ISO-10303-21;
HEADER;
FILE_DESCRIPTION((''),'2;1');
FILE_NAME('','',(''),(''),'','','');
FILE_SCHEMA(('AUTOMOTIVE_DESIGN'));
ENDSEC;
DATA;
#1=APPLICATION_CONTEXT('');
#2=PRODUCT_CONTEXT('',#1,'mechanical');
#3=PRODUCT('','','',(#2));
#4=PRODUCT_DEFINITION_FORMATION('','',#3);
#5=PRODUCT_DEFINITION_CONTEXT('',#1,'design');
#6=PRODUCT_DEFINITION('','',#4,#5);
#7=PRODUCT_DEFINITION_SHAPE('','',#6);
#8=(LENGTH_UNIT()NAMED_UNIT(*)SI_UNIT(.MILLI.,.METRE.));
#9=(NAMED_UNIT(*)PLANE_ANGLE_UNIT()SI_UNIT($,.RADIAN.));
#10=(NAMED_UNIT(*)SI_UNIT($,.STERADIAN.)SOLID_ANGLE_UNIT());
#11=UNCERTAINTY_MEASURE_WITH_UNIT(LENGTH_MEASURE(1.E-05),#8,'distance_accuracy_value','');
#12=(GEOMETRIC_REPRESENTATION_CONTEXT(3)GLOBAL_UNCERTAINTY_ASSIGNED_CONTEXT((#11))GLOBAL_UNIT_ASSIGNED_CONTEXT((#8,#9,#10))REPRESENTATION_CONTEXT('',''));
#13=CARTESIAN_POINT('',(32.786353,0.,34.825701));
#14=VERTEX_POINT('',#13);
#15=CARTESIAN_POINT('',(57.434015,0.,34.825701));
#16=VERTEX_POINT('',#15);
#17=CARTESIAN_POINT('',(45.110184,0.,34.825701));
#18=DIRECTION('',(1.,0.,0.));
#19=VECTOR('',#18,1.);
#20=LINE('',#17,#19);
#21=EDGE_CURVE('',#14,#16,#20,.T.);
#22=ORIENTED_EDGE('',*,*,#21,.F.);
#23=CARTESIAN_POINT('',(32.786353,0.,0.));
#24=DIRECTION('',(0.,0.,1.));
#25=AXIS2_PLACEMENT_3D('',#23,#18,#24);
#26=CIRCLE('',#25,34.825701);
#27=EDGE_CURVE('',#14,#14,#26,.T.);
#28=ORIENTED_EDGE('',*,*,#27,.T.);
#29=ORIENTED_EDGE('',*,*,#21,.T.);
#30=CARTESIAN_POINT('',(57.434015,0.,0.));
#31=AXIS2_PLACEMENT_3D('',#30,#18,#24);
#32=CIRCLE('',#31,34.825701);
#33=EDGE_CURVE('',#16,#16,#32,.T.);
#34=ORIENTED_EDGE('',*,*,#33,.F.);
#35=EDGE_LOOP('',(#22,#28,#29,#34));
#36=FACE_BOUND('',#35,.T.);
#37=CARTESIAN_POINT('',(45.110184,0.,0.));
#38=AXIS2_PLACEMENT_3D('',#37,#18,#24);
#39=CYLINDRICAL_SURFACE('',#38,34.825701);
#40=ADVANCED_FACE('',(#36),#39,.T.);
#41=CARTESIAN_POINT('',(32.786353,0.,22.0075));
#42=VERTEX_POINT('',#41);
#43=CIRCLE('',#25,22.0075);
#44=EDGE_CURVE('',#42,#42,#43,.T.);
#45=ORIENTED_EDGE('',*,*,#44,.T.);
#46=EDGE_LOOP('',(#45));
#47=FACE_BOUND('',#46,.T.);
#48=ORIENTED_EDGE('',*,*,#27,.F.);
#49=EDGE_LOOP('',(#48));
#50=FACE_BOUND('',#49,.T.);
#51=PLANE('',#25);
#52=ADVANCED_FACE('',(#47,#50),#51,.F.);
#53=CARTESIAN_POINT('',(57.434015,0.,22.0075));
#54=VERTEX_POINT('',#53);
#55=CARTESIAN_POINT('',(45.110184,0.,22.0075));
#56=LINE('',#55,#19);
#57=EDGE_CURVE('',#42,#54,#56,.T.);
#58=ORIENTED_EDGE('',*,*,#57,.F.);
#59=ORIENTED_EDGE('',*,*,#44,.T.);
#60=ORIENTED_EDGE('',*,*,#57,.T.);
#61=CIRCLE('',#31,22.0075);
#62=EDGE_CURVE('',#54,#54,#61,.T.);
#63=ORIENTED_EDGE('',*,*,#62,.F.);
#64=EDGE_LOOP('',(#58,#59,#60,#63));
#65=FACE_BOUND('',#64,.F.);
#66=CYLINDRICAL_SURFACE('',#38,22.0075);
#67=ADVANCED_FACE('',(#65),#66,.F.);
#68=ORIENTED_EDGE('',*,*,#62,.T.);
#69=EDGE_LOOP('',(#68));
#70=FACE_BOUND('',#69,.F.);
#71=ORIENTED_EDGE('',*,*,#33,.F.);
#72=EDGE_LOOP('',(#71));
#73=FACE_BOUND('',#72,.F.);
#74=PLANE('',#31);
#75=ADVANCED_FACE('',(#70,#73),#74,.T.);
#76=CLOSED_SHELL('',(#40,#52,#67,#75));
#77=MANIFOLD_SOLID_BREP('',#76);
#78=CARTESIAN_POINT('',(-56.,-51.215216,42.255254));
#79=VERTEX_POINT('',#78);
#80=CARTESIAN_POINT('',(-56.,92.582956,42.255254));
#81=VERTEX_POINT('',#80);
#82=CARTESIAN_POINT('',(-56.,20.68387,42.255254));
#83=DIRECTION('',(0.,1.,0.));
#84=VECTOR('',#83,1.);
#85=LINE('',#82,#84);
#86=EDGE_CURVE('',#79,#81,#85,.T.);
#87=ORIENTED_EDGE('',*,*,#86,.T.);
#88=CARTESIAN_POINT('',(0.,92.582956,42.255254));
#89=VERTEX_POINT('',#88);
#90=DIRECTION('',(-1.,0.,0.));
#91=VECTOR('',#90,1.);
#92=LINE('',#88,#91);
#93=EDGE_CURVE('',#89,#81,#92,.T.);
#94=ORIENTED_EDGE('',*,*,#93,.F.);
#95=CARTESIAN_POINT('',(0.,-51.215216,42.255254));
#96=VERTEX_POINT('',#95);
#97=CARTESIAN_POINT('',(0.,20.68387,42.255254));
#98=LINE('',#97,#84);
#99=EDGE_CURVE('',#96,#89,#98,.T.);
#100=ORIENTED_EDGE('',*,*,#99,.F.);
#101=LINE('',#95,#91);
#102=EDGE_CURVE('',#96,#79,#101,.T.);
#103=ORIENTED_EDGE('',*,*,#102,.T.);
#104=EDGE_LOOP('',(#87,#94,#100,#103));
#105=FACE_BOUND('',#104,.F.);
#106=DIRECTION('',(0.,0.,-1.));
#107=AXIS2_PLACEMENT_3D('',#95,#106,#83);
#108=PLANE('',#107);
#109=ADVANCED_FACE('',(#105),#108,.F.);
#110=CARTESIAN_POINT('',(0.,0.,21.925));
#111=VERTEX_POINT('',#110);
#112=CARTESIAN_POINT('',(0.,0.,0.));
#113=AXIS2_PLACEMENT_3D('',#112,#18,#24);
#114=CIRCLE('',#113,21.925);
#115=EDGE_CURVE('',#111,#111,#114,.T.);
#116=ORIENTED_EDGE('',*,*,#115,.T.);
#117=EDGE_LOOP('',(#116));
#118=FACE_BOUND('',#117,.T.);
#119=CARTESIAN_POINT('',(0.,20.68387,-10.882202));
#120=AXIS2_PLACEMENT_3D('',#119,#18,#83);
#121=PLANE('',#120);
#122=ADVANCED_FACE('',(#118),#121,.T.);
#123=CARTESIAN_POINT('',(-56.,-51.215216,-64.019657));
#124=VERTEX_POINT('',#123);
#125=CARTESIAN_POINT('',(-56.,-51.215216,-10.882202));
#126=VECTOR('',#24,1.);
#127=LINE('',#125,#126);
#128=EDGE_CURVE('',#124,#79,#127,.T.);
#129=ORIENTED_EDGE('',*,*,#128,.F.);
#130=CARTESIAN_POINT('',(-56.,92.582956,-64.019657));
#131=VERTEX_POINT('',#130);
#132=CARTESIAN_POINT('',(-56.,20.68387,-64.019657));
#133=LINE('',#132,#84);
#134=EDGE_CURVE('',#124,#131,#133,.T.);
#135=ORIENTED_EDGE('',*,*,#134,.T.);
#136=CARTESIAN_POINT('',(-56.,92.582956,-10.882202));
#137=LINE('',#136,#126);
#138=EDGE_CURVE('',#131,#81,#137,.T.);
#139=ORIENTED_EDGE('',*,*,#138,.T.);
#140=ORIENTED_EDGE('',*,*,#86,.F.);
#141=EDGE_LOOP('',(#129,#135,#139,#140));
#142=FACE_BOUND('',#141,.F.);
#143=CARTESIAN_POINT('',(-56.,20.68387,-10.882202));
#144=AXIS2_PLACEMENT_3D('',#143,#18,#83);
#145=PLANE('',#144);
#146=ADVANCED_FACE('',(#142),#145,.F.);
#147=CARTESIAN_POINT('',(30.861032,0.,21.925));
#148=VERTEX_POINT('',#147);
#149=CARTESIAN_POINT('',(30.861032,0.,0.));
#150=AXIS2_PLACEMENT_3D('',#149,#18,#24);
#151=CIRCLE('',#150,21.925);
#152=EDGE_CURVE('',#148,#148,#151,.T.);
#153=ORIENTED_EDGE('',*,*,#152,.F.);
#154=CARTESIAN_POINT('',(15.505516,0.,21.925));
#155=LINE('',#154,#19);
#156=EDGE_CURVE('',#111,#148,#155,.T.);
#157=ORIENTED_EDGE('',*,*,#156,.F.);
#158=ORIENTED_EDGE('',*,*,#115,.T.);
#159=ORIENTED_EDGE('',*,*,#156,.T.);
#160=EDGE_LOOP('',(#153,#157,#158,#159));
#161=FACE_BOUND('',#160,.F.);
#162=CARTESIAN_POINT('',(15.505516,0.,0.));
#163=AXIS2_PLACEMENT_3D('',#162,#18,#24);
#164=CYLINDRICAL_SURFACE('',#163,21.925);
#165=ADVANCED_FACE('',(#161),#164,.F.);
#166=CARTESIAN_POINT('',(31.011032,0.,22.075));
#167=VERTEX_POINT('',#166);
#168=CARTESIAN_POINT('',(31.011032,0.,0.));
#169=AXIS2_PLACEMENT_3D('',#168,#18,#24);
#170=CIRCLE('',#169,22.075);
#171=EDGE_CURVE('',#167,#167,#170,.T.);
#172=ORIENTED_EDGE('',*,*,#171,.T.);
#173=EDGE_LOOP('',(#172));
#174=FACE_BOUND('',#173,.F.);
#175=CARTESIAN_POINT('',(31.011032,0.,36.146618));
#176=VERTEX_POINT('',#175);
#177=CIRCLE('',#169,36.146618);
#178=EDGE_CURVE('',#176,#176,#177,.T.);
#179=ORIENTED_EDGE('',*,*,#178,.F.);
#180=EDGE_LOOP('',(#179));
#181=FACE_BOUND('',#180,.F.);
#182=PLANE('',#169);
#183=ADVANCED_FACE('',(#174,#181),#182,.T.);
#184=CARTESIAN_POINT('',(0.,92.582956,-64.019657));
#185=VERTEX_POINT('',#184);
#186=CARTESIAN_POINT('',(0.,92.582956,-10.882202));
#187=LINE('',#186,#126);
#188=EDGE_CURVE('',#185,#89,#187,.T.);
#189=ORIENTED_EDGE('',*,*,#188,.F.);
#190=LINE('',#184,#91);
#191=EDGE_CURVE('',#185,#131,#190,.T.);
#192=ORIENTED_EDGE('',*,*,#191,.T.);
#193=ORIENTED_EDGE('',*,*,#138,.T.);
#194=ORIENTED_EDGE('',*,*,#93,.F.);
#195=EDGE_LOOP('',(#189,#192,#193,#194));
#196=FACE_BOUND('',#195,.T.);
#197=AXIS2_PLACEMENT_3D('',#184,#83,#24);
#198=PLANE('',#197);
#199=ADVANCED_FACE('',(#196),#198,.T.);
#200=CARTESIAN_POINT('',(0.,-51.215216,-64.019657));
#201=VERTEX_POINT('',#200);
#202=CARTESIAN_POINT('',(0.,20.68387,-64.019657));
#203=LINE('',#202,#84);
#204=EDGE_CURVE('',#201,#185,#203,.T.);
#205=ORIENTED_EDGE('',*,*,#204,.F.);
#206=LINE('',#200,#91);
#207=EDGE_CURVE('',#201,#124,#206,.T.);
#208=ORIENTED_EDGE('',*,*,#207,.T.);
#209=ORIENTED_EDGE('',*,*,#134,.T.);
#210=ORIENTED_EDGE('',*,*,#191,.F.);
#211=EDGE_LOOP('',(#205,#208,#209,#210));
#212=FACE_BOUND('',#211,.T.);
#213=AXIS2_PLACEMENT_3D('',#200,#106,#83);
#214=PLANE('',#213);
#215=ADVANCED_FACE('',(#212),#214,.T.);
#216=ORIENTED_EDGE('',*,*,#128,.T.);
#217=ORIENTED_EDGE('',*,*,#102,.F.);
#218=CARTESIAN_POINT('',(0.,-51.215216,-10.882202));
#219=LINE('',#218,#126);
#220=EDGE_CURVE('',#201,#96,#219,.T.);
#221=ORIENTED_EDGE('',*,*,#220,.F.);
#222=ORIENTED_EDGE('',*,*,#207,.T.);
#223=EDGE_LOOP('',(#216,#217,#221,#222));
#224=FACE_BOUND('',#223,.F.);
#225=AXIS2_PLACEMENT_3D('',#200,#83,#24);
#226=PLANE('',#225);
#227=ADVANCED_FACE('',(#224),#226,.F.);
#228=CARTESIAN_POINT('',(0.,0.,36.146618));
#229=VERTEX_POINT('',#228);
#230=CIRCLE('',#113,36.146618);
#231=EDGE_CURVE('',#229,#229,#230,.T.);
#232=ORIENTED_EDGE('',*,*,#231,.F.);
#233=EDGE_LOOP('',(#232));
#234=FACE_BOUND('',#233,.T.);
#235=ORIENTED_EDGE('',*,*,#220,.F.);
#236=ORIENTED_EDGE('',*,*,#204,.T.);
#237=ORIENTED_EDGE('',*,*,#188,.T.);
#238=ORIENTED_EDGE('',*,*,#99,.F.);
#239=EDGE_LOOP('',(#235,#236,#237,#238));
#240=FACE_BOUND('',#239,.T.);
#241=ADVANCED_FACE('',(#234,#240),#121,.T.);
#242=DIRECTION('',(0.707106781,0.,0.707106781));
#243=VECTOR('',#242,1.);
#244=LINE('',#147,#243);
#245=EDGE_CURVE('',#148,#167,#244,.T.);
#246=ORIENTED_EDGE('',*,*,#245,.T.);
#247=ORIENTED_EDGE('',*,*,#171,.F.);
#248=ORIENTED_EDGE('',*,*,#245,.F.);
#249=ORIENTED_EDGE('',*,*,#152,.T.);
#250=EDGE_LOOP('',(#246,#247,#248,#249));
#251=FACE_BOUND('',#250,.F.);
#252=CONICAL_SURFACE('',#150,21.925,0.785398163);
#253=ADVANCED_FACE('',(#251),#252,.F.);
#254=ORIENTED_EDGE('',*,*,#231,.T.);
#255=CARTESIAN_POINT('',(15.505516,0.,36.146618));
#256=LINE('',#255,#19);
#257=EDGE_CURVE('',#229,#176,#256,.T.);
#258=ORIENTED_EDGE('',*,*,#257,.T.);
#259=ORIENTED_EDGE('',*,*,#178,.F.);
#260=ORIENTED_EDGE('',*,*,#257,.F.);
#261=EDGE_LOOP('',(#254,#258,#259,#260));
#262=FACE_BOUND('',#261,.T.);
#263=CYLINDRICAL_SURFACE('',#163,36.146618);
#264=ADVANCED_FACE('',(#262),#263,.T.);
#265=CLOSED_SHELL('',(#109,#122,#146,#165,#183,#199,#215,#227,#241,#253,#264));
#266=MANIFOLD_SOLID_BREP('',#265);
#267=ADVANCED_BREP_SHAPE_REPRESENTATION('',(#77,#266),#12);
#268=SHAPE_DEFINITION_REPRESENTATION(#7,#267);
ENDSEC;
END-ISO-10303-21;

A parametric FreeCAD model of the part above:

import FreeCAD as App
import Part
import Sketcher
Q = App.Units.Quantity


def edges_at(feature, points):
    """Names of the edges that pass closest to the given points."""
    edges = feature.Shape.Edges
    near = lambda p: min(range(len(edges)), key=lambda i: edges[i].distToShape(Part.Vertex(*p))[0])
    return sorted({f"Edge{near(p) + 1}" for p in points})


def add_polygon(sketch, points):
    """Adds a closed chain of lines whose ends are joined by coincident constraints."""
    first, n = sketch.GeometryCount, len(points)
    for a, b in zip(points, points[1:] + points[:1]):
        sketch.addGeometry(Part.LineSegment(App.Vector(*a, 0), App.Vector(*b, 0)), False)
    for i in range(n):
        sketch.addConstraint(Sketcher.Constraint("Coincident", first + i, 2, first + (i + 1) % n, 1))

doc = App.newDocument("Part")
params = doc.addObject("Spreadsheet::Sheet", "Params")
for row, (alias, value) in enumerate([
    ("revolution_angle", "360 deg"),
    ("chamfer_size", "0.15 mm"),
    ("pad1_length", "56 mm"),
    ("revolution2_angle", "360 deg"),
], start=1):
    params.set(f"A{row}", alias)
    params.set(f"B{row}", "=" + value)
    params.setAlias(f"B{row}", alias)

body = doc.addObject("PartDesign::Body", "Body")

# Sketch on XZ plane
sketch1 = body.newObject("Sketcher::SketchObject", "Sketch")
sketch1.AttachmentSupport = (doc.getObject("XZ_Plane"), [""])
sketch1.MapMode = "FlatFace"
add_polygon(sketch1, [(0, 36.146618), (0, 21.925), (31.011032, 21.925), (31.011032, 36.146618)])  # lines 0-3
sketch1.addConstraint(Sketcher.Constraint("Vertical", 0))
sketch1.addConstraint(Sketcher.Constraint("Horizontal", 1))
sketch1.addConstraint(Sketcher.Constraint("Vertical", 2))
sketch1.addConstraint(Sketcher.Constraint("Horizontal", 3))
sketch1.addConstraint(Sketcher.Constraint("PointOnObject", 0, 2, -2))
sketch1.addConstraint(Sketcher.Constraint("DistanceY", -1, 1, 0, 2, Q("21.925 mm")))
sketch1.addConstraint(Sketcher.Constraint("DistanceX", 1, 1, 1, 2, Q("31.011032 mm")))
sketch1.addConstraint(Sketcher.Constraint("DistanceY", 0, 2, 0, 1, Q("14.221618 mm")))
revolution = body.newObject("PartDesign::Revolution", "Revolution")
revolution.Profile = sketch1
revolution.ReferenceAxis = (sketch1, ["H_Axis"])
revolution.setExpression("Angle", "Params.revolution_angle")
doc.recompute()

chamfer = body.newObject("PartDesign::Chamfer", "Chamfer")
chamfer.Base = (revolution, edges_at(revolution, [(31.011, 0, -21.925)]))
chamfer.setExpression("Size", "Params.chamfer_size")

# Sketch on YZ plane
sketch2 = body.newObject("Sketcher::SketchObject", "Sketch001")
sketch2.AttachmentSupport = (doc.getObject("YZ_Plane"), [""])
sketch2.MapMode = "FlatFace"
add_polygon(sketch2, [(-51.215216, 42.255254), (-51.215216, -64.019657), (92.582956, -64.019657), (92.582956, 42.255254)])  # lines 0-3
sketch2.addConstraint(Sketcher.Constraint("Vertical", 0))
sketch2.addConstraint(Sketcher.Constraint("Horizontal", 1))
sketch2.addConstraint(Sketcher.Constraint("Vertical", 2))
sketch2.addConstraint(Sketcher.Constraint("Horizontal", 3))
sketch2.addConstraint(Sketcher.Constraint("DistanceY", 0, 2, 0, 1, Q("106.274911 mm")))
sketch2.addConstraint(Sketcher.Constraint("DistanceX", 1, 1, 1, 2, Q("143.798173 mm")))
sketch2.addConstraint(Sketcher.Constraint("DistanceX", 0, 2, -1, 1, Q("51.215216 mm")))
sketch2.addConstraint(Sketcher.Constraint("DistanceY", 0, 2, -1, 1, Q("64.019657 mm")))
pad1 = body.newObject("PartDesign::Pad", "Pad")
pad1.Profile = sketch2
pad1.setExpression("Length", "Params.pad1_length")
pad1.Reversed = True
body2 = doc.addObject("PartDesign::Body", "Body001")

# Sketch on XZ plane
sketch3 = body2.newObject("Sketcher::SketchObject", "Sketch002")
sketch3.AttachmentSupport = (doc.getObject("XZ_Plane001"), [""])
sketch3.MapMode = "FlatFace"
add_polygon(sketch3, [(32.786353, 34.825701), (32.786353, 22.0075), (57.434015, 22.0075), (57.434015, 34.825701)])  # lines 0-3
sketch3.addConstraint(Sketcher.Constraint("Vertical", 0))
sketch3.addConstraint(Sketcher.Constraint("Horizontal", 1))
sketch3.addConstraint(Sketcher.Constraint("Vertical", 2))
sketch3.addConstraint(Sketcher.Constraint("Horizontal", 3))
sketch3.addConstraint(Sketcher.Constraint("DistanceY", 0, 2, 0, 1, Q("12.818201 mm")))
sketch3.addConstraint(Sketcher.Constraint("DistanceX", 1, 1, 1, 2, Q("24.647661 mm")))
sketch3.addConstraint(Sketcher.Constraint("DistanceY", -1, 1, 0, 2, Q("22.0075 mm")))
sketch3.addConstraint(Sketcher.Constraint("DistanceX", -1, 1, 0, 2, Q("32.786353 mm")))
revolution2 = body2.newObject("PartDesign::Revolution", "Revolution001")
revolution2.Profile = sketch3
revolution2.ReferenceAxis = (sketch3, ["H_Axis"])
revolution2.setExpression("Angle", "Params.revolution2_angle")

doc.recompute()
